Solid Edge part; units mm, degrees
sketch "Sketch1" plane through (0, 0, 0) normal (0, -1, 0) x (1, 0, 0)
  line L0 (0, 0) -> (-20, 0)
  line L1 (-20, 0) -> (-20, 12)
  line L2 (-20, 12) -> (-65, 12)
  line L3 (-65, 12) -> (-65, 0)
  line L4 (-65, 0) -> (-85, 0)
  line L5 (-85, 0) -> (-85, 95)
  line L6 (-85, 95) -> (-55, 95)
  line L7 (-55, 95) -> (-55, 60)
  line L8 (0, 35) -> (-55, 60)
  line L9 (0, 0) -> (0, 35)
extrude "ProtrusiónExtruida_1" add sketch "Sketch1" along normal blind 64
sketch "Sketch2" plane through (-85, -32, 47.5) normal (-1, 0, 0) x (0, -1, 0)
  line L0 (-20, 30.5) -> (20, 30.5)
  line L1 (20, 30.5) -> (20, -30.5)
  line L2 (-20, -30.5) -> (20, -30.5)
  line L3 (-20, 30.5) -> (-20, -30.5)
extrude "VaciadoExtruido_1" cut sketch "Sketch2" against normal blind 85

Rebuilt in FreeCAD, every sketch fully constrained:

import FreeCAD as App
import Part
import Sketcher
from FreeCAD import Vector


def add_polygon(sketch, points):
    """Adds a closed chain of lines whose ends are joined by coincident constraints."""
    first, n = sketch.GeometryCount, len(points)
    for a, b in zip(points, points[1:] + points[:1]):
        sketch.addGeometry(Part.LineSegment(App.Vector(*a, 0), App.Vector(*b, 0)), False)
    for i in range(n):
        sketch.addConstraint(Sketcher.Constraint("Coincident", first + i, 2, first + (i + 1) % n, 1))

doc = App.newDocument("Part")
body = doc.addObject("PartDesign::Body", "Body")

# Sketch on XZ plane
sketch1 = body.newObject("Sketcher::SketchObject", "Sketch")
sketch1.AttachmentSupport = (doc.getObject("XZ_Plane"), [""])
sketch1.MapMode = "FlatFace"
add_polygon(sketch1, [(-20, 0), (0, 0), (0, 35), (-55, 60), (-55, 95), (-85, 95), (-85, 0), (-65, 0), (-65, 12), (-20, 12)])  # lines 0-9
sketch1.addConstraint([
    Sketcher.Constraint("Horizontal", 0),
    Sketcher.Constraint("Vertical", 1),
    Sketcher.Constraint("Vertical", 3),
    Sketcher.Constraint("Horizontal", 4),
    Sketcher.Constraint("Vertical", 5),
    Sketcher.Constraint("Horizontal", 6),
    Sketcher.Constraint("Vertical", 7),
    Sketcher.Constraint("Horizontal", 8),
    Sketcher.Constraint("Vertical", 9),
    Sketcher.Constraint("Coincident", 0, 2, -1, 1),
    Sketcher.Constraint("PointOnObject", 5, 2, -1),
    Sketcher.Constraint("Equal", 0, 6),
    Sketcher.Constraint("Equal", 1, 3),
    Sketcher.Constraint("DistanceX", 0, 1, 0, 2, 20.0),
    Sketcher.Constraint("DistanceX", 4, 2, 4, 1, 30.0),
    Sketcher.Constraint("DistanceX", 8, 1, 8, 2, 45.0),
    Sketcher.Constraint("DistanceY", 1, 1, 1, 2, 35.0),
    Sketcher.Constraint("DistanceY", 5, 2, 5, 1, 95.0),
    Sketcher.Constraint("DistanceY", 7, 1, 7, 2, 12.0),
])
pad1 = body.newObject("PartDesign::Pad", "Pad")
pad1.Profile = sketch1
pad1.Length = 64

# Sketch on YZ plane
sketch2 = body.newObject("Sketcher::SketchObject", "Sketch001")
sketch2.AttachmentSupport = (doc.getObject("YZ_Plane"), [""])
sketch2.MapMode = "FlatFace"
sketch2.AttachmentOffset = App.Placement(Vector(0, 0, -85), App.Rotation())
add_polygon(sketch2, [(-52, 78), (-12, 78), (-12, 17), (-52, 17)])  # lines 0-3
sketch2.addConstraint([
    Sketcher.Constraint("Horizontal", 0),
    Sketcher.Constraint("Vertical", 1),
    Sketcher.Constraint("Horizontal", 2),
    Sketcher.Constraint("Vertical", 3),
    Sketcher.Constraint("DistanceX", 0, 1, 0, 2, 40.0),
    Sketcher.Constraint("DistanceY", 1, 2, 1, 1, 61.0),
    Sketcher.Constraint("DistanceX", 0, 2, -1, 1, 12.0),
    Sketcher.Constraint("DistanceY", -1, 1, 0, 2, 78.0),
])
pocket1 = body.newObject("PartDesign::Pocket", "Pocket")
pocket1.Profile = sketch2
pocket1.Length = 85
pocket1.Reversed = True

doc.recompute()
